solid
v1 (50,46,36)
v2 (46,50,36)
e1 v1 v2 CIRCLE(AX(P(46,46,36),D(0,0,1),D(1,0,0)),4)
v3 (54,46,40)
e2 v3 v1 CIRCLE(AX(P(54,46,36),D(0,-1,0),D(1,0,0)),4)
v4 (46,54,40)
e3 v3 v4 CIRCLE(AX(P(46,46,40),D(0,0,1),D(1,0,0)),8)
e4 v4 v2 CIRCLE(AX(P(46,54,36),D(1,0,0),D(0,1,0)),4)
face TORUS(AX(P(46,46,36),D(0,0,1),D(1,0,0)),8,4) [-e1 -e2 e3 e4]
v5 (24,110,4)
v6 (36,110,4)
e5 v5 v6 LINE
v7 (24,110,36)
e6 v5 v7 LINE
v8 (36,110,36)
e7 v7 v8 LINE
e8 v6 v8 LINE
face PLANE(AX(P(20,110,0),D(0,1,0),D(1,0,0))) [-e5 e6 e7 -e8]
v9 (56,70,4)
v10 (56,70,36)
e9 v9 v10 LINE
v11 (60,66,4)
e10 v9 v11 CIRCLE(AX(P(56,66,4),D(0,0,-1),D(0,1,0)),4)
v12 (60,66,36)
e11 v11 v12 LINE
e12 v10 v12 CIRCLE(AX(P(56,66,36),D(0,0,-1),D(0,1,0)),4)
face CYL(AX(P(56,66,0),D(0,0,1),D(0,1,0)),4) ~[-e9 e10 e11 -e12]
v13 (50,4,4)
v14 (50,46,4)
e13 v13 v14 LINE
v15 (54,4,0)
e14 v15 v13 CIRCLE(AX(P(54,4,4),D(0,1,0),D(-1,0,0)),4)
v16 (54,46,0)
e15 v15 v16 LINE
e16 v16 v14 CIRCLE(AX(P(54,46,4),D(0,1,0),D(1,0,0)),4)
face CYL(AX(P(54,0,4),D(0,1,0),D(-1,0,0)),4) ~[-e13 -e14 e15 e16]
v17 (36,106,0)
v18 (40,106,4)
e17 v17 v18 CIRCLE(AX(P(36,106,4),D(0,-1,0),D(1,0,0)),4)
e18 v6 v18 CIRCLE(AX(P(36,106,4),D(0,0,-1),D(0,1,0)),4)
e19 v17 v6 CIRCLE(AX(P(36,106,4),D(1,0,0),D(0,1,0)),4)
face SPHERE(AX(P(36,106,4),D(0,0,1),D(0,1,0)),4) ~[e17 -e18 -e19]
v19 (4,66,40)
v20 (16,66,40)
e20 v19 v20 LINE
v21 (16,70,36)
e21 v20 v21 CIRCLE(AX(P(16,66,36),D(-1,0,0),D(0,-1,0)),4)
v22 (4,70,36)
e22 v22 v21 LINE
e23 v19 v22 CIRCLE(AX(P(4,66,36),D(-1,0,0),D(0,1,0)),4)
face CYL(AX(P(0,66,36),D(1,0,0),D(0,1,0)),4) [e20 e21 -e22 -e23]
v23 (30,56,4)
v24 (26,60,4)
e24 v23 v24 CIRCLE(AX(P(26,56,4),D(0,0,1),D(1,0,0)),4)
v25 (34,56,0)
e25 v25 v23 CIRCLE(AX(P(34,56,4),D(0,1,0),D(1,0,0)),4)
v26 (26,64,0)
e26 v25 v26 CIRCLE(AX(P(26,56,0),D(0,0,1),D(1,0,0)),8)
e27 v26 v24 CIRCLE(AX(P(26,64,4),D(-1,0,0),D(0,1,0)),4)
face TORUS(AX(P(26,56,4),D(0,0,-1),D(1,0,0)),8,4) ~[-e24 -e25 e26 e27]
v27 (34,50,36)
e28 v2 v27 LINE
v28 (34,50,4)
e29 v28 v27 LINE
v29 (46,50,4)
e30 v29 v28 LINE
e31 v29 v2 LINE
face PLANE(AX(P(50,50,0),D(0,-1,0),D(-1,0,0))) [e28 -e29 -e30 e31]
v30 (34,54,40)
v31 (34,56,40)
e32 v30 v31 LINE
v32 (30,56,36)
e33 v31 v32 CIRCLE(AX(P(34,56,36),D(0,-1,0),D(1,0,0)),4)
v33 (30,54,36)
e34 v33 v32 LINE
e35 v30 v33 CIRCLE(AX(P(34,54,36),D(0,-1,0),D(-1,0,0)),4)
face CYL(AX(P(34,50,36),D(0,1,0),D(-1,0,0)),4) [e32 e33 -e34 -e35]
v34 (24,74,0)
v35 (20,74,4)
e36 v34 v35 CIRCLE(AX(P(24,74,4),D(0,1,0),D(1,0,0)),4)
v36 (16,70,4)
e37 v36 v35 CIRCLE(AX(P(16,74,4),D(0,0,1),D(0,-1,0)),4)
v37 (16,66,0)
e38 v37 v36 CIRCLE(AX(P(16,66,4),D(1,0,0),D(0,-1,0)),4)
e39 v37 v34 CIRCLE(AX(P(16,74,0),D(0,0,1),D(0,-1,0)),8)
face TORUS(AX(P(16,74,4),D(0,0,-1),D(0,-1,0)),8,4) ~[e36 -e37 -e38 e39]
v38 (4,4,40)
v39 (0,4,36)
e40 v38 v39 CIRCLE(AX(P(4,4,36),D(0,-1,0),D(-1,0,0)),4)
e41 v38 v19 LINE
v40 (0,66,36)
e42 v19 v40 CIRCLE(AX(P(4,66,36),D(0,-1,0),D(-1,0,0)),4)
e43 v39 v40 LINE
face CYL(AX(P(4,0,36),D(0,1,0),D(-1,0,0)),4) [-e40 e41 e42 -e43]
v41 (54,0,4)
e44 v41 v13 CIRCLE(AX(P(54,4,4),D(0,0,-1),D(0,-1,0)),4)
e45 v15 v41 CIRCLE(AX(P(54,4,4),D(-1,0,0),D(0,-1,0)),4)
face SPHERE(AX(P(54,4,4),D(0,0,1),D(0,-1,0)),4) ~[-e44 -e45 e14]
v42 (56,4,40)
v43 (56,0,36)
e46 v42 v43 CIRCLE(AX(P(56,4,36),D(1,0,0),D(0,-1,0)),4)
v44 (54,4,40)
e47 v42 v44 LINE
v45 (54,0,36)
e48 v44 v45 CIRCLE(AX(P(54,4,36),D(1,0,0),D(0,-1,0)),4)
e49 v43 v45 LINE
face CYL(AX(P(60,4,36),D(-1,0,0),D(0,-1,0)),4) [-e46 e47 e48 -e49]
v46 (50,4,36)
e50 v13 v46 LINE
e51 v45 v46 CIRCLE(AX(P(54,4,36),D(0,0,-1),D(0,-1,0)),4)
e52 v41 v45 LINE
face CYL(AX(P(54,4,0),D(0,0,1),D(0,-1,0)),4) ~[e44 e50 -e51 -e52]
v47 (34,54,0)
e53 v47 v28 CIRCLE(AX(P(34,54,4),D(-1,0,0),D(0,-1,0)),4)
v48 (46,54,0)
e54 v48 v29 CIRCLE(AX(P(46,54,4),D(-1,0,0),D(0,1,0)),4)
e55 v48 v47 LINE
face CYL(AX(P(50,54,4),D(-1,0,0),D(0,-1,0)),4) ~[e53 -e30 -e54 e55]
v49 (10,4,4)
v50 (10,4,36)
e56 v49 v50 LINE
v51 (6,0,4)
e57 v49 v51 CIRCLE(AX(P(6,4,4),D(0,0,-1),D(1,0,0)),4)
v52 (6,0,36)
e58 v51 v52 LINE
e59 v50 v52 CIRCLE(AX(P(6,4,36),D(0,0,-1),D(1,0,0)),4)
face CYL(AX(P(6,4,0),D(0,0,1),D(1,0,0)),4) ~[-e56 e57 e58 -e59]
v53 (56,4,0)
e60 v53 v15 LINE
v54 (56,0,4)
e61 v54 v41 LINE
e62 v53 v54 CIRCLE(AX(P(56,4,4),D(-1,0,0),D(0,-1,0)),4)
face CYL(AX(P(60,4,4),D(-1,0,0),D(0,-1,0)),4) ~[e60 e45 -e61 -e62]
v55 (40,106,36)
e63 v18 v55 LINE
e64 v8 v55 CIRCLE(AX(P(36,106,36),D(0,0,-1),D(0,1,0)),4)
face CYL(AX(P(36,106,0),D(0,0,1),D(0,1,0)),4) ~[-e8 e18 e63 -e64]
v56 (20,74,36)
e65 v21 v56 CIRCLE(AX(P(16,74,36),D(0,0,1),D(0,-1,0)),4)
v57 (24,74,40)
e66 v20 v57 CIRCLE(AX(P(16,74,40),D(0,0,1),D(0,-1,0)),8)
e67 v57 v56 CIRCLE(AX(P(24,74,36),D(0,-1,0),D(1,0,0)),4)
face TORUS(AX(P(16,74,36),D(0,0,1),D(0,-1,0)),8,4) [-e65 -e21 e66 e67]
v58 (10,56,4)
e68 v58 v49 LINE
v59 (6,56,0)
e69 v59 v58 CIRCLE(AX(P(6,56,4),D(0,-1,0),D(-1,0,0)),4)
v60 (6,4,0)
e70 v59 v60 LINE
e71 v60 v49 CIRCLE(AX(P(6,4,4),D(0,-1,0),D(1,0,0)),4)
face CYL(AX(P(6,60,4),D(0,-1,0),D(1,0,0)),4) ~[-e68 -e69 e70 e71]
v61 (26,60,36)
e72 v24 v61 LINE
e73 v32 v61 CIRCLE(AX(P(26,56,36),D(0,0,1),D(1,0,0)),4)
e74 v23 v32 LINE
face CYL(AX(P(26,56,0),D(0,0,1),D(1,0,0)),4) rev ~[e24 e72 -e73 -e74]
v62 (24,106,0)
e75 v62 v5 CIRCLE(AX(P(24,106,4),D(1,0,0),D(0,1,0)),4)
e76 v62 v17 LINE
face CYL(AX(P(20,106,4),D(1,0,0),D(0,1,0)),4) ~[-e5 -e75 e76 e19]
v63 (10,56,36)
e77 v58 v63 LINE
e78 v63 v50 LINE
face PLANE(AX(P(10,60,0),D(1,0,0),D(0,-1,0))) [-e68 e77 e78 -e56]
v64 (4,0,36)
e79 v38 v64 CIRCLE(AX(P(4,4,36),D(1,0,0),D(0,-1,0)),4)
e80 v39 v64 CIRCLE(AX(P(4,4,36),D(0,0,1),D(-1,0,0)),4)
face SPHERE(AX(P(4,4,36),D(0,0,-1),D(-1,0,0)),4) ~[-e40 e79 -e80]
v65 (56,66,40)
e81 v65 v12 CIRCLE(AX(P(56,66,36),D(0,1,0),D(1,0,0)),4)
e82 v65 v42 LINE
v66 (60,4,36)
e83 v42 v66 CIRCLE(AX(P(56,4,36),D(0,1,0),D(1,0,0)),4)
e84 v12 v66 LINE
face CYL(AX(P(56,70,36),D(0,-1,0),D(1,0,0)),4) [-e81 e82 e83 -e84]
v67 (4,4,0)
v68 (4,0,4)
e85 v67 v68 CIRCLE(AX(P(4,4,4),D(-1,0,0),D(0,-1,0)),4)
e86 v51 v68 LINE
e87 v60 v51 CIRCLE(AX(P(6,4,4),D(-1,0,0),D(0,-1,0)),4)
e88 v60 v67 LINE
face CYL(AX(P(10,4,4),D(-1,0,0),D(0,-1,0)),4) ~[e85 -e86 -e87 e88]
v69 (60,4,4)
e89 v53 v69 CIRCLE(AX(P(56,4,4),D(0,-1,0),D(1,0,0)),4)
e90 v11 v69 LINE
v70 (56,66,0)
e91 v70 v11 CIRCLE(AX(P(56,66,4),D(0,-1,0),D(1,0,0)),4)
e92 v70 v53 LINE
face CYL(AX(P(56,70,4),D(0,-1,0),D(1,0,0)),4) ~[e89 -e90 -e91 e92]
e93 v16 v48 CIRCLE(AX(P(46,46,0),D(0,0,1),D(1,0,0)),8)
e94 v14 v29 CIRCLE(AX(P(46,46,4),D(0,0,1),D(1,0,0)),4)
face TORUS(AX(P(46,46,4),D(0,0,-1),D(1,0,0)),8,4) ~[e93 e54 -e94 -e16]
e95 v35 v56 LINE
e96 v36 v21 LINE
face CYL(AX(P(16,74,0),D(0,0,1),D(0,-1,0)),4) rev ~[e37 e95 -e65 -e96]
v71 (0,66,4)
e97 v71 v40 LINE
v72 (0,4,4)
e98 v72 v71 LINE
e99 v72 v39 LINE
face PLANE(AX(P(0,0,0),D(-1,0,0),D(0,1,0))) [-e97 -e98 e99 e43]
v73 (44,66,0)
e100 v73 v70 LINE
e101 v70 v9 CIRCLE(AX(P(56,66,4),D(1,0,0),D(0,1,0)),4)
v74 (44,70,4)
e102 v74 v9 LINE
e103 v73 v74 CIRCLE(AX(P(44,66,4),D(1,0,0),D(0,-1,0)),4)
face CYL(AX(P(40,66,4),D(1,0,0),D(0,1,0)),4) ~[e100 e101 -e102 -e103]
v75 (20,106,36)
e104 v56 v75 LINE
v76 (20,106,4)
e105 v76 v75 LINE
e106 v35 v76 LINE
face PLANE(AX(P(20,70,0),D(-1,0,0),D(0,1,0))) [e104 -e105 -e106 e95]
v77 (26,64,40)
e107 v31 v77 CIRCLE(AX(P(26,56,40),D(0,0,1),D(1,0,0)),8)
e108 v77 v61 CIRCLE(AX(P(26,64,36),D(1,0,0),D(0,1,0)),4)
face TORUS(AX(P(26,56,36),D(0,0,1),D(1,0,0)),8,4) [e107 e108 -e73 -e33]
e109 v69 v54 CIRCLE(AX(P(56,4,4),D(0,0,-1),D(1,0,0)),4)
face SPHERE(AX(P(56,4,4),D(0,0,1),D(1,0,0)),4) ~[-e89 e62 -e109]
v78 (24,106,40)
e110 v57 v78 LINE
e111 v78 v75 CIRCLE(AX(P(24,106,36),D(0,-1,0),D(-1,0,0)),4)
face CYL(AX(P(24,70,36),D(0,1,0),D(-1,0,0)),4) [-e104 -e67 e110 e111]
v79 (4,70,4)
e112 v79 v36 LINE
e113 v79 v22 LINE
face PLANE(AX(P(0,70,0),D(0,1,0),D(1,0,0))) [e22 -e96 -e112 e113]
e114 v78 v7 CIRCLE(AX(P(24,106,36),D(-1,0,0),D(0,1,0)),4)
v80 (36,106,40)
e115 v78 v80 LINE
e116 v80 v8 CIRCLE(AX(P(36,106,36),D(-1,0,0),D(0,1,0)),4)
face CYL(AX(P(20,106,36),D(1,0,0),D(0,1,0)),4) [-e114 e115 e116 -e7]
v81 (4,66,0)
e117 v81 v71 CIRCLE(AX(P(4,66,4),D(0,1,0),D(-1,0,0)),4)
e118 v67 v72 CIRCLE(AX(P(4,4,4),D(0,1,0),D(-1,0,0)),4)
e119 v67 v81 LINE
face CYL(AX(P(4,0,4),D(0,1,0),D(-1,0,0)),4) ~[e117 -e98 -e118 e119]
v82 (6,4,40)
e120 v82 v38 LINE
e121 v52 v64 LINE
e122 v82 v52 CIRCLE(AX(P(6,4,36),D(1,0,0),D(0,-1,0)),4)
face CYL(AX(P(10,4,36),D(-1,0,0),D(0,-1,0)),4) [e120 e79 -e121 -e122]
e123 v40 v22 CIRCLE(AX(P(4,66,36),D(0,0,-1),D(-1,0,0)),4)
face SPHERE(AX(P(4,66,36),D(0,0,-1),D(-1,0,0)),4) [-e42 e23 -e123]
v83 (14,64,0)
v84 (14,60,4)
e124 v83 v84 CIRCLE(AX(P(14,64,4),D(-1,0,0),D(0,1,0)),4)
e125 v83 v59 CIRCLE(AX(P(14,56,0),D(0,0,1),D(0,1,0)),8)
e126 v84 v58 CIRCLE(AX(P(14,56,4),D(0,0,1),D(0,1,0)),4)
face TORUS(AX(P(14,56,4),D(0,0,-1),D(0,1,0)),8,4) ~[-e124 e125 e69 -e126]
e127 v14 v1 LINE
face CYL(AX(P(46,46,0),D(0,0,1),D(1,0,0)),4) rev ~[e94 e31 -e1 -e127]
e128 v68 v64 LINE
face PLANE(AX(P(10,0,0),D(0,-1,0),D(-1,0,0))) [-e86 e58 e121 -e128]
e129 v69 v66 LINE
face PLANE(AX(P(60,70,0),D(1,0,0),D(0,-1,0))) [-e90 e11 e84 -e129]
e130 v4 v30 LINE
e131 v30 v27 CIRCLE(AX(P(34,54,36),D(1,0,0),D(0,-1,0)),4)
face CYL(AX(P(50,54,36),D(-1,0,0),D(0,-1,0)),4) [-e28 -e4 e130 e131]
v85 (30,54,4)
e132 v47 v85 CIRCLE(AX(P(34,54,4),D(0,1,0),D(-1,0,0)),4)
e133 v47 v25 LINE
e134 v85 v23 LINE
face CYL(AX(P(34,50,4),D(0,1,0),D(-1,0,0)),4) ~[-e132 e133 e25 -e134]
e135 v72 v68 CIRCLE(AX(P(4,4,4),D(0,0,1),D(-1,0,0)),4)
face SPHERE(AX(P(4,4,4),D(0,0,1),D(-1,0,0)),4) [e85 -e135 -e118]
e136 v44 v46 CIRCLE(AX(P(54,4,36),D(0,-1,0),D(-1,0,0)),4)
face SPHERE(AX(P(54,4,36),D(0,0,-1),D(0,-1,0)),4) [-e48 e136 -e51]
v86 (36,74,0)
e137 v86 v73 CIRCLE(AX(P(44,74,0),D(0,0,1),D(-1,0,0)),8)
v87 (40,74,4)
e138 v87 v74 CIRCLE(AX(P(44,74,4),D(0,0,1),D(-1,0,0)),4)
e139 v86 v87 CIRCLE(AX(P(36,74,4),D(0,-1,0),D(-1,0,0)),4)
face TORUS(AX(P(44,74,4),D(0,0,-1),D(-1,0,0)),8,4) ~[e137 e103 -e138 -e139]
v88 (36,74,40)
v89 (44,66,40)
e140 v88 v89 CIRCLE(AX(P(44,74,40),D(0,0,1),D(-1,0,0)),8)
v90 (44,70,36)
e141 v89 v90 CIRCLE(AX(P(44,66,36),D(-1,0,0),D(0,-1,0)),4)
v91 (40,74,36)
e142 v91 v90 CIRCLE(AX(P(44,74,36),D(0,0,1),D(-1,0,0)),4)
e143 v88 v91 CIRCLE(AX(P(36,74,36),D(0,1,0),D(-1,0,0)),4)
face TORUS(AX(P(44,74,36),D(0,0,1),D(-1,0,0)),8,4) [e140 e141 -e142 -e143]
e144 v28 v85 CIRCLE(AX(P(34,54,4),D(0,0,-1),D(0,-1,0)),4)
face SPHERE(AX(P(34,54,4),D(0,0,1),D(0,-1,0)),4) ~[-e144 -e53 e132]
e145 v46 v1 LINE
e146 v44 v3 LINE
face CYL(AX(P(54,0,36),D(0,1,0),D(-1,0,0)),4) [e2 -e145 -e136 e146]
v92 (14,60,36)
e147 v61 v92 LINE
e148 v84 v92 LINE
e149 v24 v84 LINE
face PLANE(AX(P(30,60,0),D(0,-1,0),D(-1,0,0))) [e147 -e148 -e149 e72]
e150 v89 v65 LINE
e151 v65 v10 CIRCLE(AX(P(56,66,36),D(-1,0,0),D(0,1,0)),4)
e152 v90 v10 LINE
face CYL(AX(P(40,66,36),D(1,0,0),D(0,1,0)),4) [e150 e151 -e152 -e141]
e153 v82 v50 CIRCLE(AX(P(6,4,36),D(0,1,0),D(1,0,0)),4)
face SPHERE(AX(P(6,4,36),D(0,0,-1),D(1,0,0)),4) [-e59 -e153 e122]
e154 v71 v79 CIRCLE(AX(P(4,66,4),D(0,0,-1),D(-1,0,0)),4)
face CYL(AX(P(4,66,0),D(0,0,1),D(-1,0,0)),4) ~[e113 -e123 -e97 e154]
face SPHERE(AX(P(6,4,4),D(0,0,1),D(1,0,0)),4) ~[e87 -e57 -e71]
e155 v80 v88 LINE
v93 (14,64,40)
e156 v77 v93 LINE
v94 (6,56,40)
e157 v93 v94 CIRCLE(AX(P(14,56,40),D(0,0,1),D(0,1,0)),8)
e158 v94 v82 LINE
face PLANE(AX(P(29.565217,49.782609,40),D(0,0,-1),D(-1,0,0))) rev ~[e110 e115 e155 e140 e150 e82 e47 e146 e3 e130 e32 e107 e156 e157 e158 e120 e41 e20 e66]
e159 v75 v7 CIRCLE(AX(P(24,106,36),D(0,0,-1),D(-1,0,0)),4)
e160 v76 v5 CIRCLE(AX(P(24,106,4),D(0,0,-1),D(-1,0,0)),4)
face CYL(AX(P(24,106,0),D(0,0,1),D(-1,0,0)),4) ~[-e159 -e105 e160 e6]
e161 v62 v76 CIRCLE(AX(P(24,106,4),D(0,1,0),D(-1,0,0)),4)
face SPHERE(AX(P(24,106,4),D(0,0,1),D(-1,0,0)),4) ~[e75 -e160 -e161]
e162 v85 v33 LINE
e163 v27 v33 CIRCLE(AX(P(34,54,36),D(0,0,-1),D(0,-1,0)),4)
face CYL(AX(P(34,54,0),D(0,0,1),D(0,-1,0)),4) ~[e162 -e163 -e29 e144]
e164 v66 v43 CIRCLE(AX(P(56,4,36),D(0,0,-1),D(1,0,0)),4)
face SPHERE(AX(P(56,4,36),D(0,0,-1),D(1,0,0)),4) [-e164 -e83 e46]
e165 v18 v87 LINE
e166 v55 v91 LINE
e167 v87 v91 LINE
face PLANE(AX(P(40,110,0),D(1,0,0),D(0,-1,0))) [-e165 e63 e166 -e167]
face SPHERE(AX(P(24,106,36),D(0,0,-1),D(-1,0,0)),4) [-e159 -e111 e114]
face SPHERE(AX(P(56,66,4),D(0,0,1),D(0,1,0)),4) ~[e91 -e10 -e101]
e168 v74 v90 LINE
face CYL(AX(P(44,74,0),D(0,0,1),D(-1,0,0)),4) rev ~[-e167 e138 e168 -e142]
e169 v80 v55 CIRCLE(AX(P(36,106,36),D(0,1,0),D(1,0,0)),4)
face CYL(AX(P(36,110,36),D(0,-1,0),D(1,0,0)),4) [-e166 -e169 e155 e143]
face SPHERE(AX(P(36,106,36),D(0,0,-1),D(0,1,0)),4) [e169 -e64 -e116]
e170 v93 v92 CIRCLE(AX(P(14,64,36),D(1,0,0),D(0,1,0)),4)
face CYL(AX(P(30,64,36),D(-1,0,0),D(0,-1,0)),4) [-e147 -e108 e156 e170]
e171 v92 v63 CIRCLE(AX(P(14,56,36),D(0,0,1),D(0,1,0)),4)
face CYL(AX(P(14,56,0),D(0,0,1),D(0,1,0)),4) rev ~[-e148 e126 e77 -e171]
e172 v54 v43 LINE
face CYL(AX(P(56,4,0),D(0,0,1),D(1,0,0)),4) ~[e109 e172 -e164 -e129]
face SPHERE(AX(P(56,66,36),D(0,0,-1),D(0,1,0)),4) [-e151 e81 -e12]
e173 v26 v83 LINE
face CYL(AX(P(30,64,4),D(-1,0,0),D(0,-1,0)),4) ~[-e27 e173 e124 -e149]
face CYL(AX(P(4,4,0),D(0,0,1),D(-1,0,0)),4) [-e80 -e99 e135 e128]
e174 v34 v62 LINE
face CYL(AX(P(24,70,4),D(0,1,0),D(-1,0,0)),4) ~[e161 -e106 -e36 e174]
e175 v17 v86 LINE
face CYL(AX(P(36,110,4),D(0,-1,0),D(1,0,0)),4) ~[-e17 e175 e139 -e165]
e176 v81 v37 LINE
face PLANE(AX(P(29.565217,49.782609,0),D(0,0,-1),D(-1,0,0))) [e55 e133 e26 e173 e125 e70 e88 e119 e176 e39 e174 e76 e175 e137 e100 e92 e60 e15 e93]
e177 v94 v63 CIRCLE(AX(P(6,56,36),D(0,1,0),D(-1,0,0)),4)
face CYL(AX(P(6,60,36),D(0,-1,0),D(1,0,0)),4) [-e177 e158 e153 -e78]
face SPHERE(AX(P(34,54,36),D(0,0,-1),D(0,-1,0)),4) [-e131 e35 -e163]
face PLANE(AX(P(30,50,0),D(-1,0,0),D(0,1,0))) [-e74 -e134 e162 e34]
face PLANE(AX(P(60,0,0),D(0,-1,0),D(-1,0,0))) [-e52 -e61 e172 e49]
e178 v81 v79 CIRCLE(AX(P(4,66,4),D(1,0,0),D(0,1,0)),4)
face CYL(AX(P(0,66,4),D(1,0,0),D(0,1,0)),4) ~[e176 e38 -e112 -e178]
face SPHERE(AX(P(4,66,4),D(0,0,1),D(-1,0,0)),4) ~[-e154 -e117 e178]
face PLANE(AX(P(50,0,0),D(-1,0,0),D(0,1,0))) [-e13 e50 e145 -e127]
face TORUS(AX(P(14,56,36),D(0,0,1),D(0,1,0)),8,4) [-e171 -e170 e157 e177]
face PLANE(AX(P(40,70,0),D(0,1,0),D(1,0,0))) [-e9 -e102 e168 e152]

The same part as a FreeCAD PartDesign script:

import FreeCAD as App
import Part
import Sketcher

V = App.Vector

doc = App.newDocument("Part")
body = doc.addObject("PartDesign::Body", "Body")

# Sketch on XY plane
sketch1 = doc.addObject("Sketcher::SketchObject", "Sketch")
body.addObject(sketch1)
sketch1.AttachmentSupport = (doc.XY_Plane, [""])
sketch1.MapMode = "FlatFace"
sketch1.addGeometry([
    Part.LineSegment(V(0, 70, 0), V(0, 0, 0)),  # 0
    Part.LineSegment(V(0, 0, 0), V(10, 0, 0)),  # 1
    Part.LineSegment(V(10, 0, 0), V(10, 60, 0)),  # 2
    Part.LineSegment(V(10, 60, 0), V(30, 60, 0)),  # 3
    Part.LineSegment(V(30, 60, 0), V(30, 50, 0)),  # 4
    Part.LineSegment(V(30, 50, 0), V(50, 50, 0)),  # 5
    Part.LineSegment(V(50, 50, 0), V(50, 0, 0)),  # 6
    Part.LineSegment(V(50, 0, 0), V(60, 0, 0)),  # 7
    Part.LineSegment(V(60, 0, 0), V(60, 70, 0)),  # 8
    Part.LineSegment(V(60, 70, 0), V(40, 70, 0)),  # 9
    Part.LineSegment(V(40, 70, 0), V(40, 110, 0)),  # 10
    Part.LineSegment(V(40, 110, 0), V(20, 110, 0)),  # 11
    Part.LineSegment(V(20, 110, 0), V(20, 70, 0)),  # 12
    Part.LineSegment(V(20, 70, 0), V(0, 70, 0)),  # 13
], False)
sketch1.addConstraint([
    Sketcher.Constraint("Coincident", 0, 2, 1, 1),
    Sketcher.Constraint("Coincident", 1, 2, 2, 1),
    Sketcher.Constraint("Coincident", 2, 2, 3, 1),
    Sketcher.Constraint("Coincident", 3, 2, 4, 1),
    Sketcher.Constraint("Coincident", 4, 2, 5, 1),
    Sketcher.Constraint("Coincident", 5, 2, 6, 1),
    Sketcher.Constraint("Coincident", 6, 2, 7, 1),
    Sketcher.Constraint("Coincident", 7, 2, 8, 1),
    Sketcher.Constraint("Coincident", 8, 2, 9, 1),
    Sketcher.Constraint("Coincident", 9, 2, 10, 1),
    Sketcher.Constraint("Coincident", 10, 2, 11, 1),
    Sketcher.Constraint("Coincident", 11, 2, 12, 1),
    Sketcher.Constraint("Coincident", 12, 2, 13, 1),
    Sketcher.Constraint("Coincident", 13, 2, 0, 1),
    Sketcher.Constraint("Vertical", 0),
    Sketcher.Constraint("Horizontal", 1),
    Sketcher.Constraint("Vertical", 2),
    Sketcher.Constraint("Horizontal", 3),
    Sketcher.Constraint("Vertical", 4),
    Sketcher.Constraint("Horizontal", 5),
    Sketcher.Constraint("Vertical", 6),
    Sketcher.Constraint("Horizontal", 7),
    Sketcher.Constraint("Vertical", 8),
    Sketcher.Constraint("Horizontal", 9),
    Sketcher.Constraint("Vertical", 10),
    Sketcher.Constraint("Horizontal", 11),
    Sketcher.Constraint("Vertical", 12),
    Sketcher.Constraint("Horizontal", 13),
    Sketcher.Constraint("Coincident", 0, 2, -1, 1),
    Sketcher.Constraint("PointOnObject", 6, 2, -1),
    Sketcher.Constraint("Horizontal", 9, 2, 12, 2),
    Sketcher.Constraint("Equal", 3, 5),
    Sketcher.Constraint("Equal", 1, 7),
    Sketcher.Constraint("Equal", 5, 9),
    Sketcher.Constraint("Equal", 9, 11),
    Sketcher.Constraint("Equal", 11, 13),
    Sketcher.Constraint("Equal", 7, 4),
    Sketcher.Constraint("DistanceX", 1, 1, 1, 2, 10.0),
    Sketcher.Constraint("DistanceY", 0, 2, 0, 1, 70.0),
    Sketcher.Constraint("DistanceY", 2, 1, 2, 2, 60.0),
    Sketcher.Constraint("DistanceY", 10, 1, 10, 2, 40.0),
])
pad1 = doc.addObject("PartDesign::Pad", "Pad")
body.addObject(pad1)
pad1.Profile = sketch1
pad1.Length = 40
doc.recompute()

fillet = doc.addObject("PartDesign::Fillet", "Fillet")
body.addObject(fillet)
fillet.Base = (pad1, ["Edge1"])
fillet.UseAllEdges = True
fillet.Radius = 4

doc.recompute()
